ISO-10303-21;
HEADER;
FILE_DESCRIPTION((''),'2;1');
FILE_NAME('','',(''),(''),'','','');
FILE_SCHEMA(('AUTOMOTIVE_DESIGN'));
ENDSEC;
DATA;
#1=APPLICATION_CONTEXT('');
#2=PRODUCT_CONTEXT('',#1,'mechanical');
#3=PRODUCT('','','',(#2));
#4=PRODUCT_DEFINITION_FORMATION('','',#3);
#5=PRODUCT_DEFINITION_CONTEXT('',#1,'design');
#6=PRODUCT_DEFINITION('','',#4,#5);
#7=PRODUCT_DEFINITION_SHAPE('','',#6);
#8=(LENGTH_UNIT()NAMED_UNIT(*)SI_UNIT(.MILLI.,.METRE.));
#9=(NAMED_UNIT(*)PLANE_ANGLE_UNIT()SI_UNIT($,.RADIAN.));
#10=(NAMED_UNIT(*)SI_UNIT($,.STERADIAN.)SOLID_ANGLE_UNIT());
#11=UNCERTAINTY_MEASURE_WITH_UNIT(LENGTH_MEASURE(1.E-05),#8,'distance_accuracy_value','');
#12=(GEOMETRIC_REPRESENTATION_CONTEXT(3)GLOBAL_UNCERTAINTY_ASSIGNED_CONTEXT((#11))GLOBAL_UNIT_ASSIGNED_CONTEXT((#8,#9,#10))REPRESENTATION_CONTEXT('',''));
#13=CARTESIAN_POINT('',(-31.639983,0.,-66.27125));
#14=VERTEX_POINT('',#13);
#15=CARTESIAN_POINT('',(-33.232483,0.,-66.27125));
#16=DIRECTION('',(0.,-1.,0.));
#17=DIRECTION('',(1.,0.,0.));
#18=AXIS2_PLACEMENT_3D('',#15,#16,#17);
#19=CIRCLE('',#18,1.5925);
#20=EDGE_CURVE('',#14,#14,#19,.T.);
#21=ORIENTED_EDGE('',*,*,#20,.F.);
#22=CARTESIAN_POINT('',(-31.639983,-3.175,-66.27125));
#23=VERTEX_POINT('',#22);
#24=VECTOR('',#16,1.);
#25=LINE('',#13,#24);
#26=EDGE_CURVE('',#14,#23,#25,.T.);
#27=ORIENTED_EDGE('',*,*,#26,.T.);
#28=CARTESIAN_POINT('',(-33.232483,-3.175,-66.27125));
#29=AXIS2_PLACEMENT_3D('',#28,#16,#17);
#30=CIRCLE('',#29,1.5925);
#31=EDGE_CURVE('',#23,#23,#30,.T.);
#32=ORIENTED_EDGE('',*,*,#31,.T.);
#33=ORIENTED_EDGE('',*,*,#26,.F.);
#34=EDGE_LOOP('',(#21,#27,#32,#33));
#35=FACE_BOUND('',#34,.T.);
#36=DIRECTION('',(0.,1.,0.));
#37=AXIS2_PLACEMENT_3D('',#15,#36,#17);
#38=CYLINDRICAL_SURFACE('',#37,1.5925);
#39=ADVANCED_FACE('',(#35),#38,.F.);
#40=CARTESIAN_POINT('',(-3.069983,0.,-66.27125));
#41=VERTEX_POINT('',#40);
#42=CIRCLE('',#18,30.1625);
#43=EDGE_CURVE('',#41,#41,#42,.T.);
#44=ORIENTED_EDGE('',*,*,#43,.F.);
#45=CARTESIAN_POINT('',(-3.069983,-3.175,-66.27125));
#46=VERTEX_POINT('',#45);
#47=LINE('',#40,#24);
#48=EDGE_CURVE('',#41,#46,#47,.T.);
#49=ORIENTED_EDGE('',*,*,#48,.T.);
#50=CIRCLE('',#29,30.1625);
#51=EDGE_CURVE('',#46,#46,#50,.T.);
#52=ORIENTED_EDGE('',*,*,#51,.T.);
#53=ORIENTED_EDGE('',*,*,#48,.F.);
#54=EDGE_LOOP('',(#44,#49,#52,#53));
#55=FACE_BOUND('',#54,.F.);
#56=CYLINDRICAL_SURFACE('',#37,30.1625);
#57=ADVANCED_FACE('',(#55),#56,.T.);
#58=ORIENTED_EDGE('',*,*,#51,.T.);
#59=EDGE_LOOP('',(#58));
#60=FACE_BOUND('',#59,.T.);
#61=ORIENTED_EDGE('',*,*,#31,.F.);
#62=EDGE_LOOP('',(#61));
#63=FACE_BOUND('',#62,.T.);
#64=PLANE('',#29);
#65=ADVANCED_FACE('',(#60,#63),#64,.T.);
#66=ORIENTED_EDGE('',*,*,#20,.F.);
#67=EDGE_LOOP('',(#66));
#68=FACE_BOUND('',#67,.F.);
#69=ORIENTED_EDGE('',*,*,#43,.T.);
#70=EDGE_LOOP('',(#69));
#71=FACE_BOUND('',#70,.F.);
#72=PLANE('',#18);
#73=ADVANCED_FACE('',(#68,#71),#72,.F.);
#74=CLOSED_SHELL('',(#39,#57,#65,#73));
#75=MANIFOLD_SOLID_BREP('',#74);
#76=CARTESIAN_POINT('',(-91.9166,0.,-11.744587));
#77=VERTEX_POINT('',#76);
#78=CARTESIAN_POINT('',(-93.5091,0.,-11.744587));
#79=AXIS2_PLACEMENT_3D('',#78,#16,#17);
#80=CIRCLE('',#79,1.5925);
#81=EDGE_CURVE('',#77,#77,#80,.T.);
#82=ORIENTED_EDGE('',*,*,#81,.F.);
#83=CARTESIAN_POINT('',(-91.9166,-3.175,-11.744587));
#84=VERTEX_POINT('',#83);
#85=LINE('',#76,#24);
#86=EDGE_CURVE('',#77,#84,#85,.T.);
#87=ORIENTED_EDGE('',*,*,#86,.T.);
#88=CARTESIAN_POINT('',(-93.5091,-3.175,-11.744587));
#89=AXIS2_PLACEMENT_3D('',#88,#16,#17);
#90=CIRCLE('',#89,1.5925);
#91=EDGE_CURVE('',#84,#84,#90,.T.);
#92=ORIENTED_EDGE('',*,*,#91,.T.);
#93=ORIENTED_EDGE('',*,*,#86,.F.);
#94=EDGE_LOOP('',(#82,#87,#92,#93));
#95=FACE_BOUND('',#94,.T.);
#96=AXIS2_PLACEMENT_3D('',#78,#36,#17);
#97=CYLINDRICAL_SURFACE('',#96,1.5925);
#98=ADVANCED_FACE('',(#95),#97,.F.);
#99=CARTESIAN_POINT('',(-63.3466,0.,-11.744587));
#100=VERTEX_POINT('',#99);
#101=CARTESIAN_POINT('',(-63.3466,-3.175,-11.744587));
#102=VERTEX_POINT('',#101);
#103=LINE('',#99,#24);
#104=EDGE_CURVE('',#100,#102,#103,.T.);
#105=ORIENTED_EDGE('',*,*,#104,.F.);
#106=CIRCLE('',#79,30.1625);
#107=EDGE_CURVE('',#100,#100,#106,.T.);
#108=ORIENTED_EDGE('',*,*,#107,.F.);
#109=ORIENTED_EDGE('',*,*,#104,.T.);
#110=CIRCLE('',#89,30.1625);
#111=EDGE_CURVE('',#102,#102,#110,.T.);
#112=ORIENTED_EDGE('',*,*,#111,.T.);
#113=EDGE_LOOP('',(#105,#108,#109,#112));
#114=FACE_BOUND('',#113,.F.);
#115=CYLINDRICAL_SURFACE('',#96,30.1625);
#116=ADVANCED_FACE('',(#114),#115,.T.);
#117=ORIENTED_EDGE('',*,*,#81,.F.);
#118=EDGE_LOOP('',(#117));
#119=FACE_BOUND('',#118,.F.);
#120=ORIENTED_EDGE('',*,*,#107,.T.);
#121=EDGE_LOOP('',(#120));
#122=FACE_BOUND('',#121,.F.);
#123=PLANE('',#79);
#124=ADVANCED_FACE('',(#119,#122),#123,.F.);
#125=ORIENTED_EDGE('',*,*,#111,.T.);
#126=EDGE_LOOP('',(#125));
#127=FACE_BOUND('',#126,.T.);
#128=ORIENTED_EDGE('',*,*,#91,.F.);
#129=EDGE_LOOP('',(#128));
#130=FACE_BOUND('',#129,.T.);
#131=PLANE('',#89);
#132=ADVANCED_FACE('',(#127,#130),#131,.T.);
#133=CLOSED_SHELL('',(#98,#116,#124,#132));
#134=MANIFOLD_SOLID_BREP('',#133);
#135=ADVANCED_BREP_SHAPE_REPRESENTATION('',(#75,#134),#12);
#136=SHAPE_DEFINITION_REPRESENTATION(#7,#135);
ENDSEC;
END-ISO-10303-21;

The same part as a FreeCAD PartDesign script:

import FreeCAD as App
import Part
import Sketcher
from FreeCAD import Vector
Q = App.Units.Quantity

doc = App.newDocument("Part")
body = doc.addObject("PartDesign::Body", "Body")

sketch1 = body.newObject("Sketcher::SketchObject", "Sketch")
sketch1.AttachmentSupport = (doc.getObject("XZ_Plane"), [""])
sketch1.MapMode = "FlatFace"
sketch1.addGeometry(Part.Circle(Vector(-93.5091, -11.744587, 0), Vector(0, 0, 1), 30.1625), False)
sketch1.addGeometry(Part.Circle(Vector(-93.5091, -11.744587, 0), Vector(0, 0, 1), 1.5925), False)
sketch1.addConstraint(Sketcher.Constraint("Coincident", 1, 3, 0, 3))
sketch1.addConstraint(Sketcher.Constraint("Diameter", 0, Q("2.375 in")))
sketch1.addConstraint(Sketcher.Constraint("Diameter", 1, 3.185))
sketch1.addConstraint(Sketcher.Constraint("DistanceX", 0, 3, -1, 1, 93.5091))
sketch1.addConstraint(Sketcher.Constraint("DistanceY", 0, 3, -1, 1, 11.744587))
pad1 = body.newObject("PartDesign::Pad", "Pad")
pad1.Profile = sketch1
pad1.Length = Q("0.125 in")
body2 = doc.addObject("PartDesign::Body", "Body001")

sketch2 = body2.newObject("Sketcher::SketchObject", "Sketch001")
sketch2.AttachmentSupport = (doc.getObject("XZ_Plane001"), [""])
sketch2.MapMode = "FlatFace"
sketch2.addGeometry(Part.Circle(Vector(-33.232483, -66.27125, 0), Vector(0, 0, 1), 30.1625), False)
sketch2.addGeometry(Part.Circle(Vector(-33.232483, -66.27125, 0), Vector(0, 0, 1), 1.5925), False)
sketch2.addConstraint(Sketcher.Constraint("Coincident", 1, 3, 0, 3))
sketch2.addConstraint(Sketcher.Constraint("Diameter", 0, Q("2.375 in")))
sketch2.addConstraint(Sketcher.Constraint("Diameter", 1, 3.185))
sketch2.addConstraint(Sketcher.Constraint("DistanceY", 0, 3, -1, 1, 66.27125))
sketch2.addConstraint(Sketcher.Constraint("DistanceX", 0, 3, -1, 1, 33.232483))
pad2 = body2.newObject("PartDesign::Pad", "Pad001")
pad2.Profile = sketch2
pad2.Length = Q("0.125 in")

doc.recompute()
